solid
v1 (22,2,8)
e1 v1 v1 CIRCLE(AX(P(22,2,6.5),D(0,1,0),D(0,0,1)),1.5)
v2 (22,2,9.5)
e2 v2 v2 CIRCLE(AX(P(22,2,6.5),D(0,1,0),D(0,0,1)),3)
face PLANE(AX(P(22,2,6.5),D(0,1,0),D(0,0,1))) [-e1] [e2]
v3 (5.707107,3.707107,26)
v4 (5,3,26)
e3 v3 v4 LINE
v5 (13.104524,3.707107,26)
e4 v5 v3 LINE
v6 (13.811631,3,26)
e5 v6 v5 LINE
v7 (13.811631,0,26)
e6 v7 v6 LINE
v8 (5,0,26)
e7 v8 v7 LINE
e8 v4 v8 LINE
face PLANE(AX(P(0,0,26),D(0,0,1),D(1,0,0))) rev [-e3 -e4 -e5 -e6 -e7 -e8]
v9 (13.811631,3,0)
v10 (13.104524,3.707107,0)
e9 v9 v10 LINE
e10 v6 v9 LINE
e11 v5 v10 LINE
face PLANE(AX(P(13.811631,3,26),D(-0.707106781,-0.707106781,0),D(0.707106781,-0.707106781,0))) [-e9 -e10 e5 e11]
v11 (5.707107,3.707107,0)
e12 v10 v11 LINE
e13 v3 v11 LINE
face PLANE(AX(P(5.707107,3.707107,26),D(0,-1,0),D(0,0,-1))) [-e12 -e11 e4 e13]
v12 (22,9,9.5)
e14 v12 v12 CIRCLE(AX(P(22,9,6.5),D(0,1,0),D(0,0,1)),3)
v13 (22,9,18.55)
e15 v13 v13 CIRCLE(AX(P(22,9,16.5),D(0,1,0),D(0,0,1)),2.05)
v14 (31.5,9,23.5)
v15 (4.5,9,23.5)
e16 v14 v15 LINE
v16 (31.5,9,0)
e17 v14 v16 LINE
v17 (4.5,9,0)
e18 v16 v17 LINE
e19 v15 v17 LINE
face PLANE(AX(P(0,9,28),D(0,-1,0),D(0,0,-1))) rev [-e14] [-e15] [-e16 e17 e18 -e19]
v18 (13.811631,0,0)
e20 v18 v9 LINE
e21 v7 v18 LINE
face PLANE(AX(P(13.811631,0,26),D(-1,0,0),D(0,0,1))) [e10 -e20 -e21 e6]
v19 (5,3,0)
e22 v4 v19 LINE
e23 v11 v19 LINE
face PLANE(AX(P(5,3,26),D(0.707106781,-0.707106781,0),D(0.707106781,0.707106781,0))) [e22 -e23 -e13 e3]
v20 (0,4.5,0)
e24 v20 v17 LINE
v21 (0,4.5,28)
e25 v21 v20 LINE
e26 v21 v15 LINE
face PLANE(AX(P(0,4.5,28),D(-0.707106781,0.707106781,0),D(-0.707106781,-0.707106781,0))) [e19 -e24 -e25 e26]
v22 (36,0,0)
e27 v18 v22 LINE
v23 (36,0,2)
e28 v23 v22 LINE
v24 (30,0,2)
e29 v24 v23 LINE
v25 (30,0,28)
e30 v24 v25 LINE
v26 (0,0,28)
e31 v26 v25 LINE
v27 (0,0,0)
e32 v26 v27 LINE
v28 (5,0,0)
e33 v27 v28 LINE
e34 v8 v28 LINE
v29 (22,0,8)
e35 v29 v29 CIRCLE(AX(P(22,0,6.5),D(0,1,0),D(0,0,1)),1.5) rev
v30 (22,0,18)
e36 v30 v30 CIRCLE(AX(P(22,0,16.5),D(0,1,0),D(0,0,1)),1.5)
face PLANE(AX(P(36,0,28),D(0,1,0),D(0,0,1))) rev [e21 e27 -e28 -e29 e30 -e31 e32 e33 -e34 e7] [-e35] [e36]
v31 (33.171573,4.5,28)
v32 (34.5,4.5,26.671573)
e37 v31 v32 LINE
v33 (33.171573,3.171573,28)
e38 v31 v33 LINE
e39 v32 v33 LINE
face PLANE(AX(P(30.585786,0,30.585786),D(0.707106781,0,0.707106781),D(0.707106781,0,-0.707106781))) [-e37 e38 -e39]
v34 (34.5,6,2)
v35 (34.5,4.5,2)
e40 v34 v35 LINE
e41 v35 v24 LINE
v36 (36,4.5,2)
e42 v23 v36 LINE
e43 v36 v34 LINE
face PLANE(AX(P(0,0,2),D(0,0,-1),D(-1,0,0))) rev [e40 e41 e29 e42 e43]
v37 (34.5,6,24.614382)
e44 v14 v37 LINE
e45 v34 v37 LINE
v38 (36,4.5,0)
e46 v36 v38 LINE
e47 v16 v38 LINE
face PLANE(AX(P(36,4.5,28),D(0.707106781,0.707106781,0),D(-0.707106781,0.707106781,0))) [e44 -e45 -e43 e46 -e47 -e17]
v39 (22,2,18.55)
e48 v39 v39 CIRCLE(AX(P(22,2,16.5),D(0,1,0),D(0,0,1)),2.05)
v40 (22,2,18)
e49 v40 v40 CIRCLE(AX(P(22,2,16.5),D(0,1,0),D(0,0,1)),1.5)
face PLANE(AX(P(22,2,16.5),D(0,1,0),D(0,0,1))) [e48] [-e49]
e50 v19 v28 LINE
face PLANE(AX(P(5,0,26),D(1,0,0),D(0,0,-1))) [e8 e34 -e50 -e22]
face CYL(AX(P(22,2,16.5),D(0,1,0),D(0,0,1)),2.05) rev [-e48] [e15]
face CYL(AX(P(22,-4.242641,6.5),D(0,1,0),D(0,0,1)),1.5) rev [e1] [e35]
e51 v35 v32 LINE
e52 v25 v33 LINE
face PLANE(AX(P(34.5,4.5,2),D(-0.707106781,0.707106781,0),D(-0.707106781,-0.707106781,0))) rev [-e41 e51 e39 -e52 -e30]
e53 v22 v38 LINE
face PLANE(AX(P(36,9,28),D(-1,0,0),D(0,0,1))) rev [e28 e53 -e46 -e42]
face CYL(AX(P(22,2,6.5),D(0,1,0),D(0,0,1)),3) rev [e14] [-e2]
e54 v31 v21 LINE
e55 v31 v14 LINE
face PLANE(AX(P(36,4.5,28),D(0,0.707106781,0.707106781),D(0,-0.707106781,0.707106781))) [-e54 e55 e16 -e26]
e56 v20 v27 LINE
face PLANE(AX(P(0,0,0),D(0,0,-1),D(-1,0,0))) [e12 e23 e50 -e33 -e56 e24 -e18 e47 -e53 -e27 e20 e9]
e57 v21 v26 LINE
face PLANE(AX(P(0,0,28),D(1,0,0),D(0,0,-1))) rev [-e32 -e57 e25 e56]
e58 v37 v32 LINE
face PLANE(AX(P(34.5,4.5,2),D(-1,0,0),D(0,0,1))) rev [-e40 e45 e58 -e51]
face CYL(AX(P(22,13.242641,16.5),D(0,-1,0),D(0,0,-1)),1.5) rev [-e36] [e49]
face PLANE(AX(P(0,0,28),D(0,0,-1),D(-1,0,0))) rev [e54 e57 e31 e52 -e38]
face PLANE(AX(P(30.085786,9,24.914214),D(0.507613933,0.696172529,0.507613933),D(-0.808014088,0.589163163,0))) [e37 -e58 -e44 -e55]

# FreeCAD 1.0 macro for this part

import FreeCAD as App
import Part
import Sketcher

V = App.Vector

doc = App.newDocument("Part")
body = doc.addObject("PartDesign::Body", "Body")

# Sketch on XY plane
sketch1 = body.newObject("Sketcher::SketchObject", "Sketch")
sketch1.AttachmentSupport = (doc.getObject("XY_Plane"), [""])
sketch1.MapMode = "FlatFace"
sketch1.addGeometry(Part.LineSegment(V(0, 9, 0), V(0, 0, 0)), False)
sketch1.addGeometry(Part.LineSegment(V(0, 0, 0), V(36, 0, 0)), False)
sketch1.addGeometry(Part.LineSegment(V(36, 0, 0), V(36, 9, 0)), False)
sketch1.addGeometry(Part.LineSegment(V(36, 9, 0), V(0, 9, 0)), False)
sketch1.addConstraint(Sketcher.Constraint("Coincident", 0, 2, 1, 1))
sketch1.addConstraint(Sketcher.Constraint("Coincident", 1, 2, 2, 1))
sketch1.addConstraint(Sketcher.Constraint("Coincident", 2, 2, 3, 1))
sketch1.addConstraint(Sketcher.Constraint("Coincident", 3, 2, 0, 1))
sketch1.addConstraint(Sketcher.Constraint("Vertical", 0))
sketch1.addConstraint(Sketcher.Constraint("Horizontal", 1))
sketch1.addConstraint(Sketcher.Constraint("Vertical", 2))
sketch1.addConstraint(Sketcher.Constraint("Horizontal", 3))
sketch1.addConstraint(Sketcher.Constraint("Coincident", 0, 2, -1, 1))
sketch1.addConstraint(Sketcher.Constraint("DistanceX", 1, 1, 1, 2, 36.0))
sketch1.addConstraint(Sketcher.Constraint("DistanceY", 0, 2, 0, 1, 9.0))
pad1 = body.newObject("PartDesign::Pad", "Pad")
pad1.Profile = sketch1
pad1.Length = 28

# Sketch on XY plane
sketch2 = body.newObject("Sketcher::SketchObject", "Sketch001")
sketch2.AttachmentSupport = (doc.getObject("XY_Plane"), [""])
sketch2.MapMode = "FlatFace"
sketch2.addGeometry(Part.LineSegment(V(0, 4.5, 0), V(4.5, 9, 0)), False)
sketch2.addGeometry(Part.LineSegment(V(4.5, 9, 0), V(0, 9, 0)), False)
sketch2.addGeometry(Part.LineSegment(V(0, 9, 0), V(0, 4.5, 0)), False)
sketch2.addGeometry(Part.LineSegment(V(31.5, 9, 0), V(36, 4.5, 0)), False)
sketch2.addGeometry(Part.LineSegment(V(36, 4.5, 0), V(36, 9, 0)), False)
sketch2.addGeometry(Part.LineSegment(V(36, 9, 0), V(31.5, 9, 0)), False)
sketch2.addConstraint(Sketcher.Constraint("Coincident", 0, 2, 1, 1))
sketch2.addConstraint(Sketcher.Constraint("Coincident", 1, 2, 2, 1))
sketch2.addConstraint(Sketcher.Constraint("Coincident", 2, 2, 0, 1))
sketch2.addConstraint(Sketcher.Constraint("Coincident", 3, 2, 4, 1))
sketch2.addConstraint(Sketcher.Constraint("Coincident", 4, 2, 5, 1))
sketch2.addConstraint(Sketcher.Constraint("Coincident", 5, 2, 3, 1))
sketch2.addConstraint(Sketcher.Constraint("Horizontal", 1))
sketch2.addConstraint(Sketcher.Constraint("Vertical", 2))
sketch2.addConstraint(Sketcher.Constraint("Vertical", 4))
sketch2.addConstraint(Sketcher.Constraint("Horizontal", 5))
sketch2.addConstraint(Sketcher.Constraint("PointOnObject", 1, 2, -2))
sketch2.addConstraint(Sketcher.Constraint("Perpendicular", 0, 3))
sketch2.addConstraint(Sketcher.Constraint("Horizontal", 2, 2, 3, 2))
sketch2.addConstraint(Sketcher.Constraint("Horizontal", 1, 2, 4, 2))
sketch2.addConstraint(Sketcher.Constraint("Equal", 1, 5))
sketch2.addConstraint(Sketcher.Constraint("DistanceX", 1, 2, 1, 1, 4.5))
sketch2.addConstraint(Sketcher.Constraint("DistanceY", -1, 1, 0, 2, 9.0))
sketch2.addConstraint(Sketcher.Constraint("DistanceX", -1, 1, 3, 2, 36.0))
pocket1 = body.newObject("PartDesign::Pocket", "Pocket")
pocket1.Profile = sketch2
pocket1.Length = 28
pocket1.Reversed = True

# Sketch on YZ plane
sketch3 = body.newObject("Sketcher::SketchObject", "Sketch002")
sketch3.AttachmentSupport = (doc.getObject("YZ_Plane"), [""])
sketch3.MapMode = "FlatFace"
sketch3.addGeometry(Part.LineSegment(V(4.5, 28, 0), V(9, 23.5, 0)), False)
sketch3.addGeometry(Part.LineSegment(V(9, 23.5, 0), V(9, 28, 0)), False)
sketch3.addGeometry(Part.LineSegment(V(9, 28, 0), V(4.5, 28, 0)), False)
sketch3.addConstraint(Sketcher.Constraint("Coincident", 0, 2, 1, 1))
sketch3.addConstraint(Sketcher.Constraint("Coincident", 1, 2, 2, 1))
sketch3.addConstraint(Sketcher.Constraint("Coincident", 2, 2, 0, 1))
sketch3.addConstraint(Sketcher.Constraint("Vertical", 1))
sketch3.addConstraint(Sketcher.Constraint("Horizontal", 2))
sketch3.addConstraint(Sketcher.Constraint("Equal", 2, 1))
sketch3.addConstraint(Sketcher.Constraint("DistanceX", 2, 2, 2, 1, 4.5))
sketch3.addConstraint(Sketcher.Constraint("DistanceX", -1, 1, 0, 2, 9.0))
sketch3.addConstraint(Sketcher.Constraint("DistanceY", -1, 1, 1, 2, 28.0))
pocket2 = body.newObject("PartDesign::Pocket", "Pocket001")
pocket2.Profile = sketch3
pocket2.Length = 36
pocket2.Reversed = True

# Sketch on an angled plane
sketch4 = body.newObject("Sketcher::SketchObject", "Sketch003")
sketch4.Placement = App.Placement(V(32, 0, 32), App.Rotation(V(0, 1, 0), V(-0.707106781, 0, 0.707106781), V(0.707106781, 0, 0.707106781), "ZXY"))
sketch4.addGeometry(Part.LineSegment(V(0, 2, 0), V(0, -14, 0)), False)
sketch4.addGeometry(Part.LineSegment(V(0, -14, 0), V(11, -14, 0)), False)
sketch4.addGeometry(Part.LineSegment(V(11, -14, 0), V(11, 2, 0)), False)
sketch4.addGeometry(Part.LineSegment(V(11, 2, 0), V(0, 2, 0)), False)
sketch4.addConstraint(Sketcher.Constraint("Coincident", 0, 2, 1, 1))
sketch4.addConstraint(Sketcher.Constraint("Coincident", 1, 2, 2, 1))
sketch4.addConstraint(Sketcher.Constraint("Coincident", 2, 2, 3, 1))
sketch4.addConstraint(Sketcher.Constraint("Coincident", 3, 2, 0, 1))
sketch4.addConstraint(Sketcher.Constraint("Vertical", 0))
sketch4.addConstraint(Sketcher.Constraint("Horizontal", 1))
sketch4.addConstraint(Sketcher.Constraint("Vertical", 2))
sketch4.addConstraint(Sketcher.Constraint("Horizontal", 3))
sketch4.addConstraint(Sketcher.Constraint("PointOnObject", 0, 2, -2))
sketch4.addConstraint(Sketcher.Constraint("DistanceX", 1, 1, 1, 2, 11.440377))
sketch4.addConstraint(Sketcher.Constraint("DistanceY", 0, 2, 0, 1, 15.618965))
sketch4.addConstraint(Sketcher.Constraint("DistanceY", 0, 2, -1, 1, 13.745179))
pocket3 = body.newObject("PartDesign::Pocket", "Pocket002")
pocket3.Profile = sketch4
pocket3.Length = 2

# Sketch on an angled plane
sketch5 = body.newObject("Sketcher::SketchObject", "Sketch004")
sketch5.Placement = App.Placement(V(4, 0, -4), App.Rotation(V(0.577350269, -0.577350269, 0.577350269), V(0.40824829, 0.81649658, 0.40824829), V(-0.707106781, 0, 0.707106781), "ZXY"))
sketch5.addGeometry(Part.LineSegment(V(26.6, 29.8, 0), V(32.7, 28.6, 0)), False)
sketch5.addGeometry(Part.LineSegment(V(32.7, 28.6, 0), V(30.2, 32.2, 0)), False)
sketch5.addGeometry(Part.LineSegment(V(30.2, 32.2, 0), V(26.6, 29.8, 0)), False)
sketch5.addConstraint(Sketcher.Constraint("Coincident", 0, 2, 1, 1))
sketch5.addConstraint(Sketcher.Constraint("Coincident", 1, 2, 2, 1))
sketch5.addConstraint(Sketcher.Constraint("Coincident", 2, 2, 0, 1))
sketch5.addConstraint(Sketcher.Constraint("Equal", 1, 2))
sketch5.addConstraint(Sketcher.Constraint("DistanceY", 0, 2, 2, 2, 1.154701))
sketch5.addConstraint(Sketcher.Constraint("DistanceX", 1, 2, 0, 2, 2.520721))
sketch5.addConstraint(Sketcher.Constraint("DistanceY", 0, 2, 1, 2, 3.564838))
sketch5.addConstraint(Sketcher.Constraint("DistanceX", -1, 1, 0, 2, 32.719348))
sketch5.addConstraint(Sketcher.Constraint("DistanceY", -1, 1, 0, 2, 28.647425))
pocket4 = body.newObject("PartDesign::Pocket", "Pocket003")
pocket4.Profile = sketch5
pocket4.Type = "ThroughAll"
pocket4.Midplane = True

# Sketch on XY plane
sketch6 = body.newObject("Sketcher::SketchObject", "Sketch005")
sketch6.AttachmentSupport = (doc.getObject("XY_Plane"), [""])
sketch6.MapMode = "FlatFace"
sketch6.addGeometry(Part.LineSegment(V(5, 3, 0), V(5, 0, 0)), False)
sketch6.addGeometry(Part.LineSegment(V(5, 0, 0), V(13.8, 0, 0)), False)
sketch6.addGeometry(Part.LineSegment(V(13.8, 0, 0), V(13.8, 3, 0)), False)
sketch6.addGeometry(Part.LineSegment(V(13.8, 3, 0), V(13.1, 3.7, 0)), False)
sketch6.addGeometry(Part.LineSegment(V(13.1, 3.7, 0), V(5.7, 3.7, 0)), False)
sketch6.addGeometry(Part.LineSegment(V(5.7, 3.7, 0), V(5, 3, 0)), False)
sketch6.addConstraint(Sketcher.Constraint("Coincident", 0, 2, 1, 1))
sketch6.addConstraint(Sketcher.Constraint("Coincident", 1, 2, 2, 1))
sketch6.addConstraint(Sketcher.Constraint("Coincident", 2, 2, 3, 1))
sketch6.addConstraint(Sketcher.Constraint("Coincident", 3, 2, 4, 1))
sketch6.addConstraint(Sketcher.Constraint("Coincident", 4, 2, 5, 1))
sketch6.addConstraint(Sketcher.Constraint("Coincident", 5, 2, 0, 1))
sketch6.addConstraint(Sketcher.Constraint("Vertical", 0))
sketch6.addConstraint(Sketcher.Constraint("Horizontal", 1))
sketch6.addConstraint(Sketcher.Constraint("Vertical", 2))
sketch6.addConstraint(Sketcher.Constraint("Horizontal", 4))
sketch6.addConstraint(Sketcher.Constraint("PointOnObject", 0, 2, -1))
sketch6.addConstraint(Sketcher.Constraint("Perpendicular", 3, 5))
sketch6.addConstraint(Sketcher.Constraint("Horizontal", 2, 2, 5, 2))
sketch6.addConstraint(Sketcher.Constraint("Equal", 3, 5))
sketch6.addConstraint(Sketcher.Constraint("DistanceY", 0, 2, 0, 1, 3.0))
sketch6.addConstraint(Sketcher.Constraint("Distance", 3, 1.0))
sketch6.addConstraint(Sketcher.Constraint("DistanceX", -1, 1, 0, 2, 5.0))
sketch6.addConstraint(Sketcher.Constraint("DistanceX", 1, 1, 1, 2, 8.811631))
pocket5 = body.newObject("PartDesign::Pocket", "Pocket004")
pocket5.Profile = sketch6
pocket5.Length = 26
pocket5.Reversed = True

# Sketch on XY plane
sketch7 = body.newObject("Sketcher::SketchObject", "Sketch006")
sketch7.AttachmentSupport = (doc.getObject("XY_Plane"), [""])
sketch7.MapMode = "FlatFace"
sketch7.AttachmentOffset = App.Placement(V(0, 0, 28), App.Rotation())
sketch7.addGeometry(Part.LineSegment(V(30, 0, 0), V(36, 0, 0)), False)
sketch7.addGeometry(Part.LineSegment(V(36, 0, 0), V(36, 6, 0)), False)
sketch7.addGeometry(Part.LineSegment(V(36, 6, 0), V(34.5, 6, 0)), False)
sketch7.addGeometry(Part.LineSegment(V(34.5, 6, 0), V(34.5, 4.5, 0)), False)
sketch7.addGeometry(Part.LineSegment(V(34.5, 4.5, 0), V(30, 0, 0)), False)
sketch7.addConstraint(Sketcher.Constraint("Coincident", 0, 2, 1, 1))
sketch7.addConstraint(Sketcher.Constraint("Coincident", 1, 2, 2, 1))
sketch7.addConstraint(Sketcher.Constraint("Coincident", 2, 2, 3, 1))
sketch7.addConstraint(Sketcher.Constraint("Coincident", 3, 2, 4, 1))
sketch7.addConstraint(Sketcher.Constraint("Coincident", 4, 2, 0, 1))
sketch7.addConstraint(Sketcher.Constraint("Horizontal", 0))
sketch7.addConstraint(Sketcher.Constraint("Vertical", 1))
sketch7.addConstraint(Sketcher.Constraint("Horizontal", 2))
sketch7.addConstraint(Sketcher.Constraint("Vertical", 3))
sketch7.addConstraint(Sketcher.Constraint("PointOnObject", 0, 2, -1))
sketch7.addConstraint(Sketcher.Constraint("Equal", 0, 1))
sketch7.addConstraint(Sketcher.Constraint("Equal", 2, 3))
sketch7.addConstraint(Sketcher.Constraint("DistanceX", 0, 1, 0, 2, 6.0))
sketch7.addConstraint(Sketcher.Constraint("DistanceX", 2, 2, 2, 1, 1.5))
sketch7.addConstraint(Sketcher.Constraint("DistanceX", -1, 1, 0, 2, 36.0))
pocket6 = body.newObject("PartDesign::Pocket", "Pocket005")
pocket6.Profile = sketch7
pocket6.Length = 26

# Sketch on XZ plane
sketch8 = body.newObject("Sketcher::SketchObject", "Sketch007")
sketch8.AttachmentSupport = (doc.getObject("XZ_Plane"), [""])
sketch8.MapMode = "FlatFace"
sketch8.AttachmentOffset = App.Placement(V(0, 0, -9), App.Rotation())
sketch8.addGeometry(Part.Circle(V(22, 6.5, 0), V(0, 0, 1), 3), False)
sketch8.addConstraint(Sketcher.Constraint("Diameter", 0, 6.0))
sketch8.addConstraint(Sketcher.Constraint("DistanceX", -1, 1, 0, 3, 22.0))
sketch8.addConstraint(Sketcher.Constraint("DistanceY", -1, 1, 0, 3, 6.5))
pocket7 = body.newObject("PartDesign::Pocket", "Pocket006")
pocket7.Profile = sketch8
pocket7.Length = 7
pocket7.Reversed = True

# Sketch on XZ plane
sketch9 = body.newObject("Sketcher::SketchObject", "Sketch008")
sketch9.AttachmentSupport = (doc.getObject("XZ_Plane"), [""])
sketch9.MapMode = "FlatFace"
sketch9.AttachmentOffset = App.Placement(V(0, 0, -2), App.Rotation())
sketch9.addGeometry(Part.Circle(V(22, 6.5, 0), V(0, 0, 1), 1.5), False)
sketch9.addConstraint(Sketcher.Constraint("Diameter", 0, 3.0))
sketch9.addConstraint(Sketcher.Constraint("DistanceX", -1, 1, 0, 3, 22.0))
sketch9.addConstraint(Sketcher.Constraint("DistanceY", -1, 1, 0, 3, 6.5))
pocket8 = body.newObject("PartDesign::Pocket", "Pocket007")
pocket8.Profile = sketch9
pocket8.Length = 2
pocket8.Reversed = True

# Sketch on XZ plane
sketch10 = body.newObject("Sketcher::SketchObject", "Sketch009")
sketch10.AttachmentSupport = (doc.getObject("XZ_Plane"), [""])
sketch10.MapMode = "FlatFace"
sketch10.addGeometry(Part.Circle(V(22, 16.5, 0), V(0, 0, 1), 1.5), False)
sketch10.addConstraint(Sketcher.Constraint("Diameter", 0, 3.0))
sketch10.addConstraint(Sketcher.Constraint("DistanceX", -1, 1, 0, 3, 22.0))
sketch10.addConstraint(Sketcher.Constraint("DistanceY", -1, 1, 0, 3, 16.5))
pocket9 = body.newObject("PartDesign::Pocket", "Pocket008")
pocket9.Profile = sketch10
pocket9.Length = 9

# Sketch on XZ plane
sketch11 = body.newObject("Sketcher::SketchObject", "Sketch010")
sketch11.AttachmentSupport = (doc.getObject("XZ_Plane"), [""])
sketch11.MapMode = "FlatFace"
sketch11.AttachmentOffset = App.Placement(V(0, 0, -9), App.Rotation())
sketch11.addGeometry(Part.Circle(V(22, 16.5, 0), V(0, 0, 1), 2), False)
sketch11.addConstraint(Sketcher.Constraint("Diameter", 0, 4.1))
sketch11.addConstraint(Sketcher.Constraint("DistanceX", -1, 1, 0, 3, 22.0))
sketch11.addConstraint(Sketcher.Constraint("DistanceY", -1, 1, 0, 3, 16.5))
pocket10 = body.newObject("PartDesign::Pocket", "Pocket009")
pocket10.Profile = sketch11
pocket10.Length = 7
pocket10.Reversed = True

doc.recompute()
